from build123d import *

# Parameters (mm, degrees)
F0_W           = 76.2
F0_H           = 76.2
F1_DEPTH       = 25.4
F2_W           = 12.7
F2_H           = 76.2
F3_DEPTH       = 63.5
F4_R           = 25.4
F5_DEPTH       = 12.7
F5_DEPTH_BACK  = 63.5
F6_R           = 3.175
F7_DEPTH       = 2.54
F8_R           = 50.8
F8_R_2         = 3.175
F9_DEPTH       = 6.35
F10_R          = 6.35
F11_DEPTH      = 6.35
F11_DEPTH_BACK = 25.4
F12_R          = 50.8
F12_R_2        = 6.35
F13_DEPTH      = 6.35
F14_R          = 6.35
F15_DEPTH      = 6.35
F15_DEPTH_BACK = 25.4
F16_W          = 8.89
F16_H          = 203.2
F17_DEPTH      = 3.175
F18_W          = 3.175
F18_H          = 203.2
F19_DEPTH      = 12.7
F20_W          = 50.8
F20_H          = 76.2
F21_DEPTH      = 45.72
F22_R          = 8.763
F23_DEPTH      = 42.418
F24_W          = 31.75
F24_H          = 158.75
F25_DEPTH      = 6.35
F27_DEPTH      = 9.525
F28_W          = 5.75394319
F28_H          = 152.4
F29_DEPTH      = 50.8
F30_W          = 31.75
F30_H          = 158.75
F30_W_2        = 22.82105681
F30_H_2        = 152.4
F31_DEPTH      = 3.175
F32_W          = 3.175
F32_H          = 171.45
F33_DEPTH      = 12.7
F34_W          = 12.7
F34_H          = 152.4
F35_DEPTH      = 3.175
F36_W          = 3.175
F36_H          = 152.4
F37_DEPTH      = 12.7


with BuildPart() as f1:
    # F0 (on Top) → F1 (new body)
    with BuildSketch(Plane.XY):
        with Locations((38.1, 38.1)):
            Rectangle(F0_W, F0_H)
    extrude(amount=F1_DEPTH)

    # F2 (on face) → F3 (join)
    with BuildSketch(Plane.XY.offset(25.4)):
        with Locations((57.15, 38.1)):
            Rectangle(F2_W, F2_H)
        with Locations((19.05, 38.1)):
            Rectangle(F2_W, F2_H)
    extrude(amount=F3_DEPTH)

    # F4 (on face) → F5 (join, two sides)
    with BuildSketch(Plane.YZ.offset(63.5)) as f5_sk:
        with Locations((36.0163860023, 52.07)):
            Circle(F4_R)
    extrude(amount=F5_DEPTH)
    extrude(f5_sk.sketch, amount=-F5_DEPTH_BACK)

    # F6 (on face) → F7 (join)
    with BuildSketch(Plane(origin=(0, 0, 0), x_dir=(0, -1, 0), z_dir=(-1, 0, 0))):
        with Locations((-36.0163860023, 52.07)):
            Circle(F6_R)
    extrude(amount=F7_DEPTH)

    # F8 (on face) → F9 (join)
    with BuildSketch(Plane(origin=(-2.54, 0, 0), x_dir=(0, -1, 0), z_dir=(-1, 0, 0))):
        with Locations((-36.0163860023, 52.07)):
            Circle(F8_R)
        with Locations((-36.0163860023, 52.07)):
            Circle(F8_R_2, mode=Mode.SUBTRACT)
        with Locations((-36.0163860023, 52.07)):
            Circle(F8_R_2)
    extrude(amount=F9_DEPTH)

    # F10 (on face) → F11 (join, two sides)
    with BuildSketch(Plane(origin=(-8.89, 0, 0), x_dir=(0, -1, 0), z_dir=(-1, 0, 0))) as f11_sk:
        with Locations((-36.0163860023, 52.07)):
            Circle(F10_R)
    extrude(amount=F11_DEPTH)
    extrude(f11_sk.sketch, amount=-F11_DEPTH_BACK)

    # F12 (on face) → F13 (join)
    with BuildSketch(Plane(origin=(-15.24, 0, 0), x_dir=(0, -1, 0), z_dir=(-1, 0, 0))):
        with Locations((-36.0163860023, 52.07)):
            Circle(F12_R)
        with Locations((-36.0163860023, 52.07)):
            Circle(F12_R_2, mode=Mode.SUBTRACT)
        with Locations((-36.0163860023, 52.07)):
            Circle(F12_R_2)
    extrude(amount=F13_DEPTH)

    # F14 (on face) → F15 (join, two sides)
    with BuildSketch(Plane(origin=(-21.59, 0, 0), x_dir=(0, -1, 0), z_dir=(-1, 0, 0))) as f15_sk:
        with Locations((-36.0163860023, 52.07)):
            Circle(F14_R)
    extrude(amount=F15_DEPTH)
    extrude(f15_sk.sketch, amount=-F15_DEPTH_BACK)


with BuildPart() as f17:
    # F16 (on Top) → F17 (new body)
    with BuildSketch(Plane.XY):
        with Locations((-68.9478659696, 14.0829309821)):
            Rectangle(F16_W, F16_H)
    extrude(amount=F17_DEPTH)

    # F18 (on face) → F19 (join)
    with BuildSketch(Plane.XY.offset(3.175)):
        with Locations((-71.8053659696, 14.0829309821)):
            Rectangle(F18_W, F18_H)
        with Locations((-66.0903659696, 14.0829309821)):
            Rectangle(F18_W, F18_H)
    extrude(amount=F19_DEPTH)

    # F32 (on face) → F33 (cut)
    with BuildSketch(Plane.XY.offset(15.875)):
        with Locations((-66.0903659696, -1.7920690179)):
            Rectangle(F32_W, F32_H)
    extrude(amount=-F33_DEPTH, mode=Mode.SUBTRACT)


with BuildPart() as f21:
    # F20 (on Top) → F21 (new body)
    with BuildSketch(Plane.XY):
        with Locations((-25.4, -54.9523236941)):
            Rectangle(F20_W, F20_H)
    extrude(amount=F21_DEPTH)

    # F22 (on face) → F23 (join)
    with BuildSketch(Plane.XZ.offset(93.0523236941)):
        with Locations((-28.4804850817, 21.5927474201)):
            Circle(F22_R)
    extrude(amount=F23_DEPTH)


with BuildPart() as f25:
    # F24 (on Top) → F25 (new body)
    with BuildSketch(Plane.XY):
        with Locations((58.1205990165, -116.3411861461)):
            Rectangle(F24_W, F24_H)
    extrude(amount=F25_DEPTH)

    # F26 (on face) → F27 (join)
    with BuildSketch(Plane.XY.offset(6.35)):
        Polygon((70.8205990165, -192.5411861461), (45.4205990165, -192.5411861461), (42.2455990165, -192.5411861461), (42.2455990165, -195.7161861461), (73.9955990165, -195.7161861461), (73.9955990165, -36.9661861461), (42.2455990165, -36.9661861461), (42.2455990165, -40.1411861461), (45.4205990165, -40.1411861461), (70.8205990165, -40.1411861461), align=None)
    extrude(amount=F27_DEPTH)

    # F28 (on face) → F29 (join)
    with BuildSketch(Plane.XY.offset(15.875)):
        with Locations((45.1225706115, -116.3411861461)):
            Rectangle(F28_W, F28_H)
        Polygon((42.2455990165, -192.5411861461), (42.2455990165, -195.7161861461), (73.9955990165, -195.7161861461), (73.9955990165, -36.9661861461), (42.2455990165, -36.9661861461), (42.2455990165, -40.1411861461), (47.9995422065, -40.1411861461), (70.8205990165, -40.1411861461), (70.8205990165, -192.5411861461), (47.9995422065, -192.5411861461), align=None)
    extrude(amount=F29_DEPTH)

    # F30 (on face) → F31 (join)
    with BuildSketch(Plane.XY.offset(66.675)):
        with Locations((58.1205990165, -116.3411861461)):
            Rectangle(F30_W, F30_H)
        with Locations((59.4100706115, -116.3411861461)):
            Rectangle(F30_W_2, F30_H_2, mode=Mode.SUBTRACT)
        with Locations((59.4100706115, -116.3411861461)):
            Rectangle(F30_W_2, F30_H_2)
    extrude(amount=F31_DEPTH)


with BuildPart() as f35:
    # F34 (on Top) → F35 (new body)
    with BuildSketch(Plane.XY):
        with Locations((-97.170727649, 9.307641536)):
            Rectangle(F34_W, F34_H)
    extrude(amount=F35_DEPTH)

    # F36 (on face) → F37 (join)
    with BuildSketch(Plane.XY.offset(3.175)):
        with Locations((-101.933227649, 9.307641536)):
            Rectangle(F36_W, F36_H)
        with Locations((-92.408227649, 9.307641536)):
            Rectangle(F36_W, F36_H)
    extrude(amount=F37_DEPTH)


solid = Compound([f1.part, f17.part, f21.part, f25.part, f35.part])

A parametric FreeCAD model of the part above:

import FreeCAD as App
import Part
import Sketcher
Q = App.Units.Quantity


def add_polygon(sketch, points):
    """Adds a closed chain of lines whose ends are joined by coincident constraints."""
    first, n = sketch.GeometryCount, len(points)
    for a, b in zip(points, points[1:] + points[:1]):
        sketch.addGeometry(Part.LineSegment(App.Vector(*a, 0), App.Vector(*b, 0)), False)
    for i in range(n):
        sketch.addConstraint(Sketcher.Constraint("Coincident", first + i, 2, first + (i + 1) % n, 1))

doc = App.newDocument("Part")
body = doc.addObject("PartDesign::Body", "Body")

sketch1 = body.newObject("Sketcher::SketchObject", "Sketch")
sketch1.AttachmentSupport = (doc.getObject("XY_Plane"), [""])
sketch1.MapMode = "FlatFace"
add_polygon(sketch1, [(0, 76), (0, 0), (76, 0), (76, 76)])
sketch1.addConstraint(Sketcher.Constraint("Vertical", 0))
sketch1.addConstraint(Sketcher.Constraint("Horizontal", 1))
sketch1.addConstraint(Sketcher.Constraint("Vertical", 2))
sketch1.addConstraint(Sketcher.Constraint("Horizontal", 3))
sketch1.addConstraint(Sketcher.Constraint("Coincident", 0, 2, -1, 1))
sketch1.addConstraint(Sketcher.Constraint("Equal", 3, 0))
sketch1.addConstraint(Sketcher.Constraint("DistanceX", 1, 1, 1, 2, Q("3 in")))
pad1 = body.newObject("PartDesign::Pad", "Pad")
pad1.Profile = sketch1
pad1.Length = Q("1 in")

sketch2 = body.newObject("Sketcher::SketchObject", "Sketch001")
sketch2.AttachmentSupport = (doc.getObject("XY_Plane"), [""])
sketch2.MapMode = "FlatFace"
sketch2.AttachmentOffset = App.Placement(App.Vector(0, 0, 1 * 25.4), App.Rotation())
add_polygon(sketch2, [(51, 76), (51, 0), (64, 0), (64, 76)])
add_polygon(sketch2, [(13, 76), (13, 0), (25, 0), (25, 76)])
sketch2.addConstraint(Sketcher.Constraint("Vertical", 0))
sketch2.addConstraint(Sketcher.Constraint("Horizontal", 1))
sketch2.addConstraint(Sketcher.Constraint("Vertical", 2))
sketch2.addConstraint(Sketcher.Constraint("Horizontal", 3))
sketch2.addConstraint(Sketcher.Constraint("Vertical", 4))
sketch2.addConstraint(Sketcher.Constraint("Horizontal", 5))
sketch2.addConstraint(Sketcher.Constraint("Vertical", 6))
sketch2.addConstraint(Sketcher.Constraint("Horizontal", 7))
sketch2.addConstraint(Sketcher.Constraint("PointOnObject", 0, 2, -1))
sketch2.addConstraint(Sketcher.Constraint("PointOnObject", 4, 2, -1))
sketch2.addConstraint(Sketcher.Constraint("Horizontal", 3, 2, 6, 2))
sketch2.addConstraint(Sketcher.Constraint("Equal", 3, 5))
sketch2.addConstraint(Sketcher.Constraint("DistanceY", 0, 2, 0, 1, Q("3 in")))
sketch2.addConstraint(Sketcher.Constraint("DistanceX", 1, 1, 1, 2, Q("0.5 in")))
sketch2.addConstraint(Sketcher.Constraint("DistanceX", -1, 1, 0, 2, Q("2 in")))
sketch2.addConstraint(Sketcher.Constraint("DistanceX", -1, 1, 5, 2, Q("1 in")))
pad2 = body.newObject("PartDesign::Pad", "Pad001")
pad2.Profile = sketch2
pad2.Length = Q("2.5 in")

sketch3 = body.newObject("Sketcher::SketchObject", "Sketch002")
sketch3.AttachmentSupport = (doc.getObject("YZ_Plane"), [""])
sketch3.MapMode = "FlatFace"
sketch3.AttachmentOffset = App.Placement(App.Vector(0, 0, 2.5 * 25.4), App.Rotation())
sketch3.addGeometry(Part.Circle(App.Vector(36, 52, 0), App.Vector(0, 0, 1), 25), False)
sketch3.addConstraint(Sketcher.Constraint("Diameter", 0, Q("2 in")))
sketch3.addConstraint(Sketcher.Constraint("DistanceY", -1, 1, 0, 3, Q("2.05 in")))
sketch3.addConstraint(Sketcher.Constraint("DistanceX", -1, 1, 0, 3, Q("36.016386 mm")))
pad3 = body.newObject("PartDesign::Pad", "Pad002")
pad3.Profile = sketch3
pad3.Type = "TwoLengths"
pad3.Length = Q("0.5 in")
pad3.Length2 = Q("2.5 in")

sketch4 = body.newObject("Sketcher::SketchObject", "Sketch003")
sketch4.AttachmentSupport = (doc.getObject("YZ_Plane"), [""])
sketch4.MapMode = "FlatFace"
sketch4.addGeometry(Part.Circle(App.Vector(36, 52.1, 0), App.Vector(0, 0, 1), 3.2), False)
sketch4.addConstraint(Sketcher.Constraint("Diameter", 0, Q("0.25 in")))
sketch4.addConstraint(Sketcher.Constraint("DistanceY", -1, 1, 0, 3, Q("2.05 in")))
sketch4.addConstraint(Sketcher.Constraint("DistanceX", -1, 1, 0, 3, Q("36.016386 mm")))
pad4 = body.newObject("PartDesign::Pad", "Pad003")
pad4.Profile = sketch4
pad4.Length = Q("0.1 in")
pad4.Reversed = True

sketch5 = body.newObject("Sketcher::SketchObject", "Sketch004")
sketch5.AttachmentSupport = (doc.getObject("YZ_Plane"), [""])
sketch5.MapMode = "FlatFace"
sketch5.AttachmentOffset = App.Placement(App.Vector(0, 0, -0.1 * 25.4), App.Rotation())
sketch5.addGeometry(Part.Circle(App.Vector(36, 52, 0), App.Vector(0, 0, 1), 51), False)
sketch5.addConstraint(Sketcher.Constraint("Diameter", 0, Q("4 in")))
sketch5.addConstraint(Sketcher.Constraint("DistanceY", -1, 1, 0, 3, Q("2.05 in")))
sketch5.addConstraint(Sketcher.Constraint("DistanceX", -1, 1, 0, 3, Q("36.016386 mm")))
pad5 = body.newObject("PartDesign::Pad", "Pad004")
pad5.Profile = sketch5
pad5.Length = Q("0.25 in")
pad5.Reversed = True

sketch6 = body.newObject("Sketcher::SketchObject", "Sketch005")
sketch6.AttachmentSupport = (doc.getObject("YZ_Plane"), [""])
sketch6.MapMode = "FlatFace"
sketch6.AttachmentOffset = App.Placement(App.Vector(0, 0, -0.35 * 25.4), App.Rotation())
sketch6.addGeometry(Part.Circle(App.Vector(36, 52, 0), App.Vector(0, 0, 1), 6), False)
sketch6.addConstraint(Sketcher.Constraint("Diameter", 0, Q("0.5 in")))
sketch6.addConstraint(Sketcher.Constraint("DistanceY", -1, 1, 0, 3, Q("2.05 in")))
sketch6.addConstraint(Sketcher.Constraint("DistanceX", -1, 1, 0, 3, Q("36.016386 mm")))
pad6 = body.newObject("PartDesign::Pad", "Pad005")
pad6.Profile = sketch6
pad6.Type = "TwoLengths"
pad6.Length = Q("0.25 in")
pad6.Length2 = Q("1 in")
pad6.Reversed = True

sketch7 = body.newObject("Sketcher::SketchObject", "Sketch006")
sketch7.AttachmentSupport = (doc.getObject("YZ_Plane"), [""])
sketch7.MapMode = "FlatFace"
sketch7.AttachmentOffset = App.Placement(App.Vector(0, 0, -0.6 * 25.4), App.Rotation())
sketch7.addGeometry(Part.Circle(App.Vector(36, 52, 0), App.Vector(0, 0, 1), 51), False)
sketch7.addConstraint(Sketcher.Constraint("Diameter", 0, Q("4 in")))
sketch7.addConstraint(Sketcher.Constraint("DistanceY", -1, 1, 0, 3, Q("2.05 in")))
sketch7.addConstraint(Sketcher.Constraint("DistanceX", -1, 1, 0, 3, Q("36.016386 mm")))
pad7 = body.newObject("PartDesign::Pad", "Pad006")
pad7.Profile = sketch7
pad7.Length = Q("0.25 in")
pad7.Reversed = True

sketch8 = body.newObject("Sketcher::SketchObject", "Sketch007")
sketch8.AttachmentSupport = (doc.getObject("YZ_Plane"), [""])
sketch8.MapMode = "FlatFace"
sketch8.AttachmentOffset = App.Placement(App.Vector(0, 0, -0.85 * 25.4), App.Rotation())
sketch8.addGeometry(Part.Circle(App.Vector(36, 52, 0), App.Vector(0, 0, 1), 6), False)
sketch8.addConstraint(Sketcher.Constraint("Diameter", 0, Q("0.5 in")))
sketch8.addConstraint(Sketcher.Constraint("DistanceY", -1, 1, 0, 3, Q("2.05 in")))
sketch8.addConstraint(Sketcher.Constraint("DistanceX", -1, 1, 0, 3, Q("36.016386 mm")))
pad8 = body.newObject("PartDesign::Pad", "Pad007")
pad8.Profile = sketch8
pad8.Type = "TwoLengths"
pad8.Length = Q("0.25 in")
pad8.Length2 = Q("1 in")
pad8.Reversed = True
body2 = doc.addObject("PartDesign::Body", "Body001")

sketch9 = body2.newObject("Sketcher::SketchObject", "Sketch008")
sketch9.AttachmentSupport = (doc.getObject("XY_Plane001"), [""])
sketch9.MapMode = "FlatFace"
add_polygon(sketch9, [(-73, 116), (-73, -88), (-65, -88), (-65, 116)])
sketch9.addConstraint(Sketcher.Constraint("Vertical", 0))
sketch9.addConstraint(Sketcher.Constraint("Horizontal", 1))
sketch9.addConstraint(Sketcher.Constraint("Vertical", 2))
sketch9.addConstraint(Sketcher.Constraint("Horizontal", 3))
sketch9.addConstraint(Sketcher.Constraint("DistanceY", 0, 2, 0, 1, Q("8 in")))
sketch9.addConstraint(Sketcher.Constraint("DistanceX", 1, 1, 1, 2, Q("0.35 in")))
sketch9.addConstraint(Sketcher.Constraint("DistanceY", 0, 2, -1, 1, Q("87.517069 mm")))
sketch9.addConstraint(Sketcher.Constraint("DistanceX", 0, 2, -1, 1, Q("73.392866 mm")))
pad9 = body2.newObject("PartDesign::Pad", "Pad008")
pad9.Profile = sketch9
pad9.Length = Q("0.125 in")

sketch10 = body2.newObject("Sketcher::SketchObject", "Sketch009")
sketch10.AttachmentSupport = (doc.getObject("XY_Plane001"), [""])
sketch10.MapMode = "FlatFace"
sketch10.AttachmentOffset = App.Placement(App.Vector(0, 0, 0.125 * 25.4), App.Rotation())
add_polygon(sketch10, [(-73.4, 115.7), (-73.4, -87.5), (-70.2, -87.5), (-70.2, 115.7)])
add_polygon(sketch10, [(-67.7, 115.7), (-67.7, -87.5), (-64.5, -87.5), (-64.5, 115.7)])
sketch10.addConstraint(Sketcher.Constraint("Vertical", 0))
sketch10.addConstraint(Sketcher.Constraint("Horizontal", 1))
sketch10.addConstraint(Sketcher.Constraint("Vertical", 2))
sketch10.addConstraint(Sketcher.Constraint("Horizontal", 3))
sketch10.addConstraint(Sketcher.Constraint("Vertical", 4))
sketch10.addConstraint(Sketcher.Constraint("Horizontal", 5))
sketch10.addConstraint(Sketcher.Constraint("Vertical", 6))
sketch10.addConstraint(Sketcher.Constraint("Horizontal", 7))
sketch10.addConstraint(Sketcher.Constraint("Horizontal", 1, 2, 4, 2))
sketch10.addConstraint(Sketcher.Constraint("Horizontal", 3, 2, 6, 2))
sketch10.addConstraint(Sketcher.Constraint("Equal", 3, 5))
sketch10.addConstraint(Sketcher.Constraint("DistanceY", 0, 2, 0, 1, Q("8 in")))
sketch10.addConstraint(Sketcher.Constraint("DistanceX", 1, 2, 4, 2, Q("0.1 in")))
sketch10.addConstraint(Sketcher.Constraint("DistanceX", 1, 1, 1, 2, Q("0.125 in")))
sketch10.addConstraint(Sketcher.Constraint("DistanceY", 0, 2, -1, 1, Q("87.517069 mm")))
sketch10.addConstraint(Sketcher.Constraint("DistanceX", 0, 2, -1, 1, Q("73.392866 mm")))
pad10 = body2.newObject("PartDesign::Pad", "Pad009")
pad10.Profile = sketch10
pad10.Length = Q("0.5 in")

sketch11 = body2.newObject("Sketcher::SketchObject", "Sketch010")
sketch11.AttachmentSupport = (doc.getObject("XY_Plane001"), [""])
sketch11.MapMode = "FlatFace"
sketch11.AttachmentOffset = App.Placement(App.Vector(0, 0, 0.625 * 25.4), App.Rotation())
add_polygon(sketch11, [(-67.7, 83.9), (-67.7, -87.5), (-64.5, -87.5), (-64.5, 83.9)])
sketch11.addConstraint(Sketcher.Constraint("Vertical", 0))
sketch11.addConstraint(Sketcher.Constraint("Horizontal", 1))
sketch11.addConstraint(Sketcher.Constraint("Vertical", 2))
sketch11.addConstraint(Sketcher.Constraint("Horizontal", 3))
sketch11.addConstraint(Sketcher.Constraint("DistanceY", 0, 2, 0, 1, Q("6.75 in")))
sketch11.addConstraint(Sketcher.Constraint("DistanceX", 1, 1, 1, 2, Q("0.125 in")))
sketch11.addConstraint(Sketcher.Constraint("DistanceY", 0, 2, -1, 1, Q("87.517069 mm")))
sketch11.addConstraint(Sketcher.Constraint("DistanceX", 0, 2, -1, 1, Q("67.677866 mm")))
pocket1 = body2.newObject("PartDesign::Pocket", "Pocket")
pocket1.Profile = sketch11
pocket1.Length = Q("0.5 in")
body3 = doc.addObject("PartDesign::Body", "Body002")

sketch12 = body3.newObject("Sketcher::SketchObject", "Sketch011")
sketch12.AttachmentSupport = (doc.getObject("XY_Plane002"), [""])
sketch12.MapMode = "FlatFace"
add_polygon(sketch12, [(-51, -17), (-51, -93), (0, -93), (0, -17)])
sketch12.addConstraint(Sketcher.Constraint("Vertical", 0))
sketch12.addConstraint(Sketcher.Constraint("Horizontal", 1))
sketch12.addConstraint(Sketcher.Constraint("Vertical", 2))
sketch12.addConstraint(Sketcher.Constraint("Horizontal", 3))
sketch12.addConstraint(Sketcher.Constraint("PointOnObject", 1, 2, -2))
sketch12.addConstraint(Sketcher.Constraint("DistanceX", 1, 1, 1, 2, Q("2 in")))
sketch12.addConstraint(Sketcher.Constraint("DistanceY", 0, 2, 0, 1, Q("3 in")))
sketch12.addConstraint(Sketcher.Constraint("DistanceY", 0, 2, -1, 1, Q("93.052324 mm")))
pad11 = body3.newObject("PartDesign::Pad", "Pad010")
pad11.Profile = sketch12
pad11.Length = Q("1.8 in")

sketch13 = body3.newObject("Sketcher::SketchObject", "Sketch012")
sketch13.AttachmentSupport = (doc.getObject("XZ_Plane002"), [""])
sketch13.MapMode = "FlatFace"
sketch13.AttachmentOffset = App.Placement(App.Vector(0, 0, 93.052324), App.Rotation())
sketch13.addGeometry(Part.Circle(App.Vector(-28, 22, 0), App.Vector(0, 0, 1), 9), False)
sketch13.addConstraint(Sketcher.Constraint("Diameter", 0, Q("0.69 in")))
sketch13.addConstraint(Sketcher.Constraint("DistanceX", 0, 3, -1, 1, Q("28.480485 mm")))
sketch13.addConstraint(Sketcher.Constraint("DistanceY", -1, 1, 0, 3, Q("21.592747 mm")))
pad12 = body3.newObject("PartDesign::Pad", "Pad011")
pad12.Profile = sketch13
pad12.Length = Q("1.67 in")
body4 = doc.addObject("PartDesign::Body", "Body003")

sketch14 = body4.newObject("Sketcher::SketchObject", "Sketch013")
sketch14.AttachmentSupport = (doc.getObject("XY_Plane003"), [""])
sketch14.MapMode = "FlatFace"
add_polygon(sketch14, [(42, -37), (42, -196), (74, -196), (74, -37)])
sketch14.addConstraint(Sketcher.Constraint("Vertical", 0))
sketch14.addConstraint(Sketcher.Constraint("Horizontal", 1))
sketch14.addConstraint(Sketcher.Constraint("Vertical", 2))
sketch14.addConstraint(Sketcher.Constraint("Horizontal", 3))
sketch14.addConstraint(Sketcher.Constraint("DistanceX", 1, 1, 1, 2, Q("1.25 in")))
sketch14.addConstraint(Sketcher.Constraint("DistanceY", 0, 2, 0, 1, Q("6.25 in")))
sketch14.addConstraint(Sketcher.Constraint("DistanceX", -1, 1, 0, 2, Q("42.245599 mm")))
sketch14.addConstraint(Sketcher.Constraint("DistanceY", 0, 2, -1, 1, Q("195.716186 mm")))
pad13 = body4.newObject("PartDesign::Pad", "Pad012")
pad13.Profile = sketch14
pad13.Length = Q("0.25 in")

sketch15 = body4.newObject("Sketcher::SketchObject", "Sketch014")
sketch15.AttachmentSupport = (doc.getObject("XY_Plane003"), [""])
sketch15.MapMode = "FlatFace"
sketch15.AttachmentOffset = App.Placement(App.Vector(0, 0, 0.25 * 25.4), App.Rotation())
add_polygon(sketch15, [(70.8, -192.5), (42.2, -192.5), (42.2, -195.7), (74, -195.7), (74, -37), (42.2, -37), (42.2, -40.1), (70.8, -40.1)])
sketch15.addConstraint(Sketcher.Constraint("Horizontal", 0))
sketch15.addConstraint(Sketcher.Constraint("Vertical", 1))
sketch15.addConstraint(Sketcher.Constraint("Horizontal", 2))
sketch15.addConstraint(Sketcher.Constraint("Vertical", 3))
sketch15.addConstraint(Sketcher.Constraint("Horizontal", 4))
sketch15.addConstraint(Sketcher.Constraint("Vertical", 5))
sketch15.addConstraint(Sketcher.Constraint("Horizontal", 6))
sketch15.addConstraint(Sketcher.Constraint("Vertical", 7))
sketch15.addConstraint(Sketcher.Constraint("Vertical", 1, 2, 4, 2))
sketch15.addConstraint(Sketcher.Constraint("Equal", 1, 5))
sketch15.addConstraint(Sketcher.Constraint("DistanceY", 7, 2, 7, 1, Q("6 in")))
sketch15.addConstraint(Sketcher.Constraint("DistanceX", 2, 1, 2, 2, Q("1.25 in")))
sketch15.addConstraint(Sketcher.Constraint("DistanceY", 3, 1, 3, 2, Q("6.25 in")))
sketch15.addConstraint(Sketcher.Constraint("DistanceX", 0, 2, 0, 1, Q("1.125 in")))
sketch15.addConstraint(Sketcher.Constraint("DistanceX", -1, 1, 0, 2, Q("42.245599 mm")))
sketch15.addConstraint(Sketcher.Constraint("DistanceY", 0, 2, -1, 1, Q("192.541186 mm")))
pad14 = body4.newObject("PartDesign::Pad", "Pad013")
pad14.Profile = sketch15
pad14.Length = Q("0.375 in")

sketch16 = body4.newObject("Sketcher::SketchObject", "Sketch015")
sketch16.AttachmentSupport = (doc.getObject("XY_Plane003"), [""])
sketch16.MapMode = "FlatFace"
sketch16.AttachmentOffset = App.Placement(App.Vector(0, 0, 0.625 * 25.4), App.Rotation())
add_polygon(sketch16, [(42, -196), (74, -196), (74, -37), (42, -37)])
add_polygon(sketch16, [(48, -193), (48, -40), (71, -40), (71, -193)])
sketch16.addConstraint(Sketcher.Constraint("Horizontal", 0))
sketch16.addConstraint(Sketcher.Constraint("Vertical", 1))
sketch16.addConstraint(Sketcher.Constraint("Horizontal", 2))
sketch16.addConstraint(Sketcher.Constraint("Vertical", 3))
sketch16.addConstraint(Sketcher.Constraint("Vertical", 4))
sketch16.addConstraint(Sketcher.Constraint("Horizontal", 5))
sketch16.addConstraint(Sketcher.Constraint("Vertical", 6))
sketch16.addConstraint(Sketcher.Constraint("Horizontal", 7))
sketch16.addConstraint(Sketcher.Constraint("DistanceY", 4, 1, 4, 2, Q("6 in")))
sketch16.addConstraint(Sketcher.Constraint("DistanceX", 0, 1, 0, 2, Q("1.25 in")))
sketch16.addConstraint(Sketcher.Constraint("DistanceY", 1, 1, 1, 2, Q("6.25 in")))
sketch16.addConstraint(Sketcher.Constraint("DistanceY", 4, 2, 2, 2, Q("0.125 in")))
sketch16.addConstraint(Sketcher.Constraint("DistanceX", 5, 2, 1, 2, Q("0.125 in")))
sketch16.addConstraint(Sketcher.Constraint("DistanceX", -1, 1, 0, 2, Q("73.995599 mm")))
sketch16.addConstraint(Sketcher.Constraint("DistanceX", 5, 1, 5, 2, Q("22.821057 mm")))
sketch16.addConstraint(Sketcher.Constraint("DistanceY", 0, 2, -1, 1, Q("195.716186 mm")))
pad15 = body4.newObject("PartDesign::Pad", "Pad014")
pad15.Profile = sketch16
pad15.Length = Q("2 in")

sketch17 = body4.newObject("Sketcher::SketchObject", "Sketch016")
sketch17.AttachmentSupport = (doc.getObject("XY_Plane003"), [""])
sketch17.MapMode = "FlatFace"
sketch17.AttachmentOffset = App.Placement(App.Vector(0, 0, 2.625 * 25.4), App.Rotation())
add_polygon(sketch17, [(42, -37), (42, -196), (74, -196), (74, -37)])
sketch17.addConstraint(Sketcher.Constraint("Vertical", 0))
sketch17.addConstraint(Sketcher.Constraint("Horizontal", 1))
sketch17.addConstraint(Sketcher.Constraint("Vertical", 2))
sketch17.addConstraint(Sketcher.Constraint("Horizontal", 3))
sketch17.addConstraint(Sketcher.Constraint("DistanceX", 1, 1, 1, 2, Q("1.25 in")))
sketch17.addConstraint(Sketcher.Constraint("DistanceY", 0, 2, 0, 1, Q("6.25 in")))
sketch17.addConstraint(Sketcher.Constraint("DistanceX", -1, 1, 0, 2, Q("42.245599 mm")))
sketch17.addConstraint(Sketcher.Constraint("DistanceY", 0, 2, -1, 1, Q("195.716186 mm")))
pad16 = body4.newObject("PartDesign::Pad", "Pad015")
pad16.Profile = sketch17
pad16.Length = Q("0.125 in")
body5 = doc.addObject("PartDesign::Body", "Body004")

sketch18 = body5.newObject("Sketcher::SketchObject", "Sketch017")
sketch18.AttachmentSupport = (doc.getObject("XY_Plane004"), [""])
sketch18.MapMode = "FlatFace"
add_polygon(sketch18, [(-104, 86), (-104, -67), (-91, -67), (-91, 86)])
sketch18.addConstraint(Sketcher.Constraint("Vertical", 0))
sketch18.addConstraint(Sketcher.Constraint("Horizontal", 1))
sketch18.addConstraint(Sketcher.Constraint("Vertical", 2))
sketch18.addConstraint(Sketcher.Constraint("Horizontal", 3))
sketch18.addConstraint(Sketcher.Constraint("DistanceY", 0, 2, 0, 1, Q("6 in")))
sketch18.addConstraint(Sketcher.Constraint("DistanceX", 1, 1, 1, 2, Q("0.5 in")))
sketch18.addConstraint(Sketcher.Constraint("DistanceY", 0, 2, -1, 1, Q("66.892358 mm")))
sketch18.addConstraint(Sketcher.Constraint("DistanceX", 0, 2, -1, 1, Q("103.520728 mm")))
pad17 = body5.newObject("PartDesign::Pad", "Pad016")
pad17.Profile = sketch18
pad17.Length = Q("0.125 in")

sketch19 = body5.newObject("Sketcher::SketchObject", "Sketch018")
sketch19.AttachmentSupport = (doc.getObject("XY_Plane004"), [""])
sketch19.MapMode = "FlatFace"
sketch19.AttachmentOffset = App.Placement(App.Vector(0, 0, 0.125 * 25.4), App.Rotation())
add_polygon(sketch19, [(-103.5, 85.5), (-103.5, -66.9), (-100.3, -66.9), (-100.3, 85.5)])
add_polygon(sketch19, [(-94, 85.5), (-94, -66.9), (-90.8, -66.9), (-90.8, 85.5)])
sketch19.addConstraint(Sketcher.Constraint("Vertical", 0))
sketch19.addConstraint(Sketcher.Constraint("Horizontal", 1))
sketch19.addConstraint(Sketcher.Constraint("Vertical", 2))
sketch19.addConstraint(Sketcher.Constraint("Horizontal", 3))
sketch19.addConstraint(Sketcher.Constraint("Vertical", 4))
sketch19.addConstraint(Sketcher.Constraint("Horizontal", 5))
sketch19.addConstraint(Sketcher.Constraint("Vertical", 6))
sketch19.addConstraint(Sketcher.Constraint("Horizontal", 7))
sketch19.addConstraint(Sketcher.Constraint("Horizontal", 1, 2, 4, 2))
sketch19.addConstraint(Sketcher.Constraint("Horizontal", 3, 2, 6, 2))
sketch19.addConstraint(Sketcher.Constraint("Equal", 3, 5))
sketch19.addConstraint(Sketcher.Constraint("DistanceY", 0, 2, 0, 1, Q("6 in")))
sketch19.addConstraint(Sketcher.Constraint("DistanceX", 0, 2, 5, 2, Q("0.5 in")))
sketch19.addConstraint(Sketcher.Constraint("DistanceX", 1, 1, 1, 2, Q("0.125 in")))
sketch19.addConstraint(Sketcher.Constraint("DistanceY", 0, 2, -1, 1, Q("66.892358 mm")))
sketch19.addConstraint(Sketcher.Constraint("DistanceX", 0, 2, -1, 1, Q("103.520728 mm")))
pad18 = body5.newObject("PartDesign::Pad", "Pad017")
pad18.Profile = sketch19
pad18.Length = Q("0.5 in")

doc.recompute()
